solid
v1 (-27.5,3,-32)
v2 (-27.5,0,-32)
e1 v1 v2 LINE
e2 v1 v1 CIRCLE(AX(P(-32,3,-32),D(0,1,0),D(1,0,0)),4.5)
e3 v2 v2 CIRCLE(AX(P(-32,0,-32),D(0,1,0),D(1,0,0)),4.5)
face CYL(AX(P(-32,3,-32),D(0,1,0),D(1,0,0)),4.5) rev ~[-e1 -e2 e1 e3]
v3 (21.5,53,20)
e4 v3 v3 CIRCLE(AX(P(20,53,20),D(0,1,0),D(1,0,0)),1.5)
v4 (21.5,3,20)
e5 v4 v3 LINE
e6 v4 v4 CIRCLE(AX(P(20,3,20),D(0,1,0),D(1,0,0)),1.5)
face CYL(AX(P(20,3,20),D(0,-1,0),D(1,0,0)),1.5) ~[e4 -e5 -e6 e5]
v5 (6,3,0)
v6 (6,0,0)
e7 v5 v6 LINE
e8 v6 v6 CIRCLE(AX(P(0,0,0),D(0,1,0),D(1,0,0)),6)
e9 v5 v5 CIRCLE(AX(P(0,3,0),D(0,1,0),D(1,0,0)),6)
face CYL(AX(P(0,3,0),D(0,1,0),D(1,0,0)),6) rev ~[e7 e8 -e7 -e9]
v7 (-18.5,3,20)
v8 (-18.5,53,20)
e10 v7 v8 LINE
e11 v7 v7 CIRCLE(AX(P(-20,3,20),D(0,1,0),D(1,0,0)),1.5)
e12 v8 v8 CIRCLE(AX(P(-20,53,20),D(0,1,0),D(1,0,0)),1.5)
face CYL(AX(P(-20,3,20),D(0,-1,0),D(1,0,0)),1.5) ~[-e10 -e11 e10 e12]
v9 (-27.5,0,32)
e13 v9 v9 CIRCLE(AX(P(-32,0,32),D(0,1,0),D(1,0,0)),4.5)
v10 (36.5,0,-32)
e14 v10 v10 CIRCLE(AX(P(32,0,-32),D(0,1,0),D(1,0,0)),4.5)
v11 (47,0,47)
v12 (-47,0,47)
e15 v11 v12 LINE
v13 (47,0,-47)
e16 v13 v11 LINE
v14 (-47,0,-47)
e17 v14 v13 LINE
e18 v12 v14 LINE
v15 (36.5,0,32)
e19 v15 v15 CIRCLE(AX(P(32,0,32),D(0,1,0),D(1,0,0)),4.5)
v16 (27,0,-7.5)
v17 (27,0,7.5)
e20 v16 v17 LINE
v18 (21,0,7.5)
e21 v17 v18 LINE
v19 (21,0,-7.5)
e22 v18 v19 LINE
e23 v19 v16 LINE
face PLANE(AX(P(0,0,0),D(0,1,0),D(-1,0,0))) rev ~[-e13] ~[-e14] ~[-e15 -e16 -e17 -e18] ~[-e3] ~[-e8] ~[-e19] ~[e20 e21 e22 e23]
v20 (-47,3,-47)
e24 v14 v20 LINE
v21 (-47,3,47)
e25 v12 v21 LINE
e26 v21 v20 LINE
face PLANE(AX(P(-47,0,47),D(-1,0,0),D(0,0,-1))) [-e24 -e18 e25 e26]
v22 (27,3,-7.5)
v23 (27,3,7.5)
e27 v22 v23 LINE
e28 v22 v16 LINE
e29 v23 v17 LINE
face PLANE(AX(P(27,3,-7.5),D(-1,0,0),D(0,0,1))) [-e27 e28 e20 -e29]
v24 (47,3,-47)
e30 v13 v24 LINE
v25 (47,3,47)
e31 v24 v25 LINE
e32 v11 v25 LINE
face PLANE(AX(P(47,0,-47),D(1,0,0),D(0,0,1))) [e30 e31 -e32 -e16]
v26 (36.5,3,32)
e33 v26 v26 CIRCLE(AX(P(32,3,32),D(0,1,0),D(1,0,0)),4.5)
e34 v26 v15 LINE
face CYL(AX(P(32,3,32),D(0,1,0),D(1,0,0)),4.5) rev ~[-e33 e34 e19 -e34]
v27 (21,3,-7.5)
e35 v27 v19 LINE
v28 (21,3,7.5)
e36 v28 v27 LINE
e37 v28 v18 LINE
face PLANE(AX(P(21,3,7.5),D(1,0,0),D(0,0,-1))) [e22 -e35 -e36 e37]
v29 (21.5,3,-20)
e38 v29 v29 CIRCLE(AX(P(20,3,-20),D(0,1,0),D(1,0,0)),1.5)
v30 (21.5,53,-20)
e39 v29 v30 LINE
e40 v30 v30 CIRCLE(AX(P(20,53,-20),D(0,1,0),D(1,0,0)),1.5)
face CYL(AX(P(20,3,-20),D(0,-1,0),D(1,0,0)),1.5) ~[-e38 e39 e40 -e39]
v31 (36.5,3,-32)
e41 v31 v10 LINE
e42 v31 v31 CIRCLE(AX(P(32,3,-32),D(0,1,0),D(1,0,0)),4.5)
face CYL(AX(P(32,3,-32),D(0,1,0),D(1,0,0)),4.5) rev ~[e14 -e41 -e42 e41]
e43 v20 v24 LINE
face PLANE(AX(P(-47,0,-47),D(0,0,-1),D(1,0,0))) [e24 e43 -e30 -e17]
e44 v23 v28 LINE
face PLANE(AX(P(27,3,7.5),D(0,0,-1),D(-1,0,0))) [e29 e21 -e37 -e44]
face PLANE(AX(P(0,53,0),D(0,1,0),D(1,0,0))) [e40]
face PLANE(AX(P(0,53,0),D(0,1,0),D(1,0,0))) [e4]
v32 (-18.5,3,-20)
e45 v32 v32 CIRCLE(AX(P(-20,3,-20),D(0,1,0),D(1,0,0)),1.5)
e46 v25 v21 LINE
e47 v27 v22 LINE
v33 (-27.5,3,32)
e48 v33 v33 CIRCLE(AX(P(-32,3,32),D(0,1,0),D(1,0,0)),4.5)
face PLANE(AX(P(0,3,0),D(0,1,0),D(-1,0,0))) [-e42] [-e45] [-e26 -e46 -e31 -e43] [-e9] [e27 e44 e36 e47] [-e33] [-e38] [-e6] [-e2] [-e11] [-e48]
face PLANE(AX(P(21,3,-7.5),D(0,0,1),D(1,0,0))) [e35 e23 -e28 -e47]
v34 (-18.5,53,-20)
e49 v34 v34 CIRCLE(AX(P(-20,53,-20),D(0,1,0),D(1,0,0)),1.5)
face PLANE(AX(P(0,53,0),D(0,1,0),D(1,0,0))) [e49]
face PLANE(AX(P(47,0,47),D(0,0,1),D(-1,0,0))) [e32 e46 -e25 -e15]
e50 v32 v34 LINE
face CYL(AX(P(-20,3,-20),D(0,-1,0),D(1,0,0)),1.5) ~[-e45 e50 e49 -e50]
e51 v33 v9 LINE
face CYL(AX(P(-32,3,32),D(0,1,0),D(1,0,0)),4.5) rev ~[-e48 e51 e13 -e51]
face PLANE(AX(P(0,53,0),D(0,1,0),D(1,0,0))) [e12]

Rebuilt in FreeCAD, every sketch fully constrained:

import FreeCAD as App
import Part
import Sketcher

V = App.Vector

doc = App.newDocument("Part")
body = doc.addObject("PartDesign::Body", "Body")

# Sketch on XZ plane
sketch1 = doc.addObject("Sketcher::SketchObject", "Sketch")
body.addObject(sketch1)
sketch1.AttachmentSupport = (doc.XZ_Plane, [""])
sketch1.MapMode = "FlatFace"
sketch1.addGeometry([
    Part.LineSegment(V(47, -47, 0), V(-47, -47, 0)),
    Part.LineSegment(V(-47, -47, 0), V(-47, 47, 0)),
    Part.LineSegment(V(-47, 47, 0), V(47, 47, 0)),
    Part.LineSegment(V(47, 47, 0), V(47, -47, 0)),
], False)
sketch1.addConstraint([
    Sketcher.Constraint("Coincident", 0, 2, 1, 1),
    Sketcher.Constraint("Coincident", 1, 2, 2, 1),
    Sketcher.Constraint("Coincident", 2, 2, 3, 1),
    Sketcher.Constraint("Coincident", 3, 2, 0, 1),
    Sketcher.Constraint("Horizontal", 0),
    Sketcher.Constraint("Vertical", 1),
    Sketcher.Constraint("Horizontal", 2),
    Sketcher.Constraint("Vertical", 3),
    Sketcher.Constraint("Symmetric", 0, 2, 2, 2, -1, 1),
    Sketcher.Constraint("Equal", 2, 1),
    Sketcher.Constraint("DistanceX", 0, 2, 0, 1, 94.0),
])
pad1 = doc.addObject("PartDesign::Pad", "Pad")
body.addObject(pad1)
pad1.Profile = sketch1
pad1.Length = 3
pad1.Reversed = True

# Sketch on XZ plane
sketch2 = doc.addObject("Sketcher::SketchObject", "Sketch001")
body.addObject(sketch2)
sketch2.AttachmentSupport = (doc.XZ_Plane, [""])
sketch2.MapMode = "FlatFace"
sketch2.AttachmentOffset = App.Placement(V(0, 0, -3), App.Rotation())
sketch2.addGeometry(Part.Circle(V(0, 0, 0), V(0, 0, 1), 6), False)
sketch2.addConstraint([
    Sketcher.Constraint("Coincident", 0, 3, -1, 1),
    Sketcher.Constraint("Diameter", 0, 12.0),
])
pocket1 = doc.addObject("PartDesign::Pocket", "Pocket")
body.addObject(pocket1)
pocket1.Profile = sketch2
pocket1.Type = "ThroughAll"
pocket1.Reversed = True

# Sketch on XZ plane
sketch3 = doc.addObject("Sketcher::SketchObject", "Sketch002")
body.addObject(sketch3)
sketch3.AttachmentSupport = (doc.XZ_Plane, [""])
sketch3.MapMode = "FlatFace"
sketch3.AttachmentOffset = App.Placement(V(0, 0, -3), App.Rotation())
sketch3.addGeometry([
    Part.Circle(V(-32, -32, 0), V(0, 0, 1), 4.5),
    Part.Circle(V(32, -32, 0), V(0, 0, 1), 4.5),
    Part.Circle(V(32, 32, 0), V(0, 0, 1), 4.5),
    Part.Circle(V(-32, 32, 0), V(0, 0, 1), 4.5),
], False)
sketch3.addConstraint([
    Sketcher.Constraint("Equal", 0, 1),
    Sketcher.Constraint("Equal", 1, 2),
    Sketcher.Constraint("Equal", 2, 3),
    Sketcher.Constraint("Symmetric", 0, 3, 2, 3, -1, 1),
    Sketcher.Constraint("Symmetric", 1, 3, 3, 3, -1, 1),
    Sketcher.Constraint("Symmetric", 0, 3, 1, 3, -2),
    Sketcher.Constraint("Diameter", 0, 9.0),
    Sketcher.Constraint("DistanceX", 0, 3, -1, 1, 32.0),
    Sketcher.Constraint("DistanceY", 0, 3, -1, 1, 32.0),
])
pocket2 = doc.addObject("PartDesign::Pocket", "Pocket001")
body.addObject(pocket2)
pocket2.Profile = sketch3
pocket2.Type = "ThroughAll"
pocket2.Reversed = True

# Sketch on XZ plane
sketch4 = doc.addObject("Sketcher::SketchObject", "Sketch003")
body.addObject(sketch4)
sketch4.AttachmentSupport = (doc.XZ_Plane, [""])
sketch4.MapMode = "FlatFace"
sketch4.AttachmentOffset = App.Placement(V(0, 0, -3), App.Rotation())
sketch4.addGeometry([
    Part.Circle(V(-20, -20, 0), V(0, 0, 1), 1.5),
    Part.Circle(V(20, -20, 0), V(0, 0, 1), 1.5),
    Part.Circle(V(20, 20, 0), V(0, 0, 1), 1.5),
    Part.Circle(V(-20, 20, 0), V(0, 0, 1), 1.5),
], False)
sketch4.addConstraint([
    Sketcher.Constraint("Equal", 0, 1),
    Sketcher.Constraint("Equal", 1, 2),
    Sketcher.Constraint("Equal", 2, 3),
    Sketcher.Constraint("Symmetric", 0, 3, 2, 3, -1, 1),
    Sketcher.Constraint("Symmetric", 1, 3, 3, 3, -1, 1),
    Sketcher.Constraint("Symmetric", 0, 3, 1, 3, -2),
    Sketcher.Constraint("Diameter", 0, 3.0),
    Sketcher.Constraint("DistanceX", 0, 3, -1, 1, 20.0),
    Sketcher.Constraint("DistanceY", 0, 3, -1, 1, 20.0),
])
pad2 = doc.addObject("PartDesign::Pad", "Pad001")
body.addObject(pad2)
pad2.Profile = sketch4
pad2.Length = 50
pad2.Reversed = True

# Sketch on XZ plane
sketch5 = doc.addObject("Sketcher::SketchObject", "Sketch004")
body.addObject(sketch5)
sketch5.AttachmentSupport = (doc.XZ_Plane, [""])
sketch5.MapMode = "FlatFace"
sketch5.AttachmentOffset = App.Placement(V(0, 0, -3), App.Rotation())
sketch5.addGeometry([
    Part.LineSegment(V(27, -7.5, 0), V(21, -7.5, 0)),
    Part.LineSegment(V(21, -7.5, 0), V(21, 7.5, 0)),
    Part.LineSegment(V(21, 7.5, 0), V(27, 7.5, 0)),
    Part.LineSegment(V(27, 7.5, 0), V(27, -7.5, 0)),
], False)
sketch5.addConstraint([
    Sketcher.Constraint("Coincident", 0, 2, 1, 1),
    Sketcher.Constraint("Coincident", 1, 2, 2, 1),
    Sketcher.Constraint("Coincident", 2, 2, 3, 1),
    Sketcher.Constraint("Coincident", 3, 2, 0, 1),
    Sketcher.Constraint("Horizontal", 0),
    Sketcher.Constraint("Vertical", 1),
    Sketcher.Constraint("Horizontal", 2),
    Sketcher.Constraint("Vertical", 3),
    Sketcher.Constraint("DistanceX", 0, 2, 0, 1, 6.0),
    Sketcher.Constraint("DistanceY", 1, 1, 1, 2, 15.0),
    Sketcher.Constraint("DistanceX", -1, 1, 0, 2, 21.0),
    Sketcher.Constraint("DistanceY", 0, 2, -1, 1, 7.5),
])
pocket3 = doc.addObject("PartDesign::Pocket", "Pocket002")
body.addObject(pocket3)
pocket3.Profile = sketch5
pocket3.Type = "ThroughAll"
pocket3.Reversed = True

doc.recompute()
